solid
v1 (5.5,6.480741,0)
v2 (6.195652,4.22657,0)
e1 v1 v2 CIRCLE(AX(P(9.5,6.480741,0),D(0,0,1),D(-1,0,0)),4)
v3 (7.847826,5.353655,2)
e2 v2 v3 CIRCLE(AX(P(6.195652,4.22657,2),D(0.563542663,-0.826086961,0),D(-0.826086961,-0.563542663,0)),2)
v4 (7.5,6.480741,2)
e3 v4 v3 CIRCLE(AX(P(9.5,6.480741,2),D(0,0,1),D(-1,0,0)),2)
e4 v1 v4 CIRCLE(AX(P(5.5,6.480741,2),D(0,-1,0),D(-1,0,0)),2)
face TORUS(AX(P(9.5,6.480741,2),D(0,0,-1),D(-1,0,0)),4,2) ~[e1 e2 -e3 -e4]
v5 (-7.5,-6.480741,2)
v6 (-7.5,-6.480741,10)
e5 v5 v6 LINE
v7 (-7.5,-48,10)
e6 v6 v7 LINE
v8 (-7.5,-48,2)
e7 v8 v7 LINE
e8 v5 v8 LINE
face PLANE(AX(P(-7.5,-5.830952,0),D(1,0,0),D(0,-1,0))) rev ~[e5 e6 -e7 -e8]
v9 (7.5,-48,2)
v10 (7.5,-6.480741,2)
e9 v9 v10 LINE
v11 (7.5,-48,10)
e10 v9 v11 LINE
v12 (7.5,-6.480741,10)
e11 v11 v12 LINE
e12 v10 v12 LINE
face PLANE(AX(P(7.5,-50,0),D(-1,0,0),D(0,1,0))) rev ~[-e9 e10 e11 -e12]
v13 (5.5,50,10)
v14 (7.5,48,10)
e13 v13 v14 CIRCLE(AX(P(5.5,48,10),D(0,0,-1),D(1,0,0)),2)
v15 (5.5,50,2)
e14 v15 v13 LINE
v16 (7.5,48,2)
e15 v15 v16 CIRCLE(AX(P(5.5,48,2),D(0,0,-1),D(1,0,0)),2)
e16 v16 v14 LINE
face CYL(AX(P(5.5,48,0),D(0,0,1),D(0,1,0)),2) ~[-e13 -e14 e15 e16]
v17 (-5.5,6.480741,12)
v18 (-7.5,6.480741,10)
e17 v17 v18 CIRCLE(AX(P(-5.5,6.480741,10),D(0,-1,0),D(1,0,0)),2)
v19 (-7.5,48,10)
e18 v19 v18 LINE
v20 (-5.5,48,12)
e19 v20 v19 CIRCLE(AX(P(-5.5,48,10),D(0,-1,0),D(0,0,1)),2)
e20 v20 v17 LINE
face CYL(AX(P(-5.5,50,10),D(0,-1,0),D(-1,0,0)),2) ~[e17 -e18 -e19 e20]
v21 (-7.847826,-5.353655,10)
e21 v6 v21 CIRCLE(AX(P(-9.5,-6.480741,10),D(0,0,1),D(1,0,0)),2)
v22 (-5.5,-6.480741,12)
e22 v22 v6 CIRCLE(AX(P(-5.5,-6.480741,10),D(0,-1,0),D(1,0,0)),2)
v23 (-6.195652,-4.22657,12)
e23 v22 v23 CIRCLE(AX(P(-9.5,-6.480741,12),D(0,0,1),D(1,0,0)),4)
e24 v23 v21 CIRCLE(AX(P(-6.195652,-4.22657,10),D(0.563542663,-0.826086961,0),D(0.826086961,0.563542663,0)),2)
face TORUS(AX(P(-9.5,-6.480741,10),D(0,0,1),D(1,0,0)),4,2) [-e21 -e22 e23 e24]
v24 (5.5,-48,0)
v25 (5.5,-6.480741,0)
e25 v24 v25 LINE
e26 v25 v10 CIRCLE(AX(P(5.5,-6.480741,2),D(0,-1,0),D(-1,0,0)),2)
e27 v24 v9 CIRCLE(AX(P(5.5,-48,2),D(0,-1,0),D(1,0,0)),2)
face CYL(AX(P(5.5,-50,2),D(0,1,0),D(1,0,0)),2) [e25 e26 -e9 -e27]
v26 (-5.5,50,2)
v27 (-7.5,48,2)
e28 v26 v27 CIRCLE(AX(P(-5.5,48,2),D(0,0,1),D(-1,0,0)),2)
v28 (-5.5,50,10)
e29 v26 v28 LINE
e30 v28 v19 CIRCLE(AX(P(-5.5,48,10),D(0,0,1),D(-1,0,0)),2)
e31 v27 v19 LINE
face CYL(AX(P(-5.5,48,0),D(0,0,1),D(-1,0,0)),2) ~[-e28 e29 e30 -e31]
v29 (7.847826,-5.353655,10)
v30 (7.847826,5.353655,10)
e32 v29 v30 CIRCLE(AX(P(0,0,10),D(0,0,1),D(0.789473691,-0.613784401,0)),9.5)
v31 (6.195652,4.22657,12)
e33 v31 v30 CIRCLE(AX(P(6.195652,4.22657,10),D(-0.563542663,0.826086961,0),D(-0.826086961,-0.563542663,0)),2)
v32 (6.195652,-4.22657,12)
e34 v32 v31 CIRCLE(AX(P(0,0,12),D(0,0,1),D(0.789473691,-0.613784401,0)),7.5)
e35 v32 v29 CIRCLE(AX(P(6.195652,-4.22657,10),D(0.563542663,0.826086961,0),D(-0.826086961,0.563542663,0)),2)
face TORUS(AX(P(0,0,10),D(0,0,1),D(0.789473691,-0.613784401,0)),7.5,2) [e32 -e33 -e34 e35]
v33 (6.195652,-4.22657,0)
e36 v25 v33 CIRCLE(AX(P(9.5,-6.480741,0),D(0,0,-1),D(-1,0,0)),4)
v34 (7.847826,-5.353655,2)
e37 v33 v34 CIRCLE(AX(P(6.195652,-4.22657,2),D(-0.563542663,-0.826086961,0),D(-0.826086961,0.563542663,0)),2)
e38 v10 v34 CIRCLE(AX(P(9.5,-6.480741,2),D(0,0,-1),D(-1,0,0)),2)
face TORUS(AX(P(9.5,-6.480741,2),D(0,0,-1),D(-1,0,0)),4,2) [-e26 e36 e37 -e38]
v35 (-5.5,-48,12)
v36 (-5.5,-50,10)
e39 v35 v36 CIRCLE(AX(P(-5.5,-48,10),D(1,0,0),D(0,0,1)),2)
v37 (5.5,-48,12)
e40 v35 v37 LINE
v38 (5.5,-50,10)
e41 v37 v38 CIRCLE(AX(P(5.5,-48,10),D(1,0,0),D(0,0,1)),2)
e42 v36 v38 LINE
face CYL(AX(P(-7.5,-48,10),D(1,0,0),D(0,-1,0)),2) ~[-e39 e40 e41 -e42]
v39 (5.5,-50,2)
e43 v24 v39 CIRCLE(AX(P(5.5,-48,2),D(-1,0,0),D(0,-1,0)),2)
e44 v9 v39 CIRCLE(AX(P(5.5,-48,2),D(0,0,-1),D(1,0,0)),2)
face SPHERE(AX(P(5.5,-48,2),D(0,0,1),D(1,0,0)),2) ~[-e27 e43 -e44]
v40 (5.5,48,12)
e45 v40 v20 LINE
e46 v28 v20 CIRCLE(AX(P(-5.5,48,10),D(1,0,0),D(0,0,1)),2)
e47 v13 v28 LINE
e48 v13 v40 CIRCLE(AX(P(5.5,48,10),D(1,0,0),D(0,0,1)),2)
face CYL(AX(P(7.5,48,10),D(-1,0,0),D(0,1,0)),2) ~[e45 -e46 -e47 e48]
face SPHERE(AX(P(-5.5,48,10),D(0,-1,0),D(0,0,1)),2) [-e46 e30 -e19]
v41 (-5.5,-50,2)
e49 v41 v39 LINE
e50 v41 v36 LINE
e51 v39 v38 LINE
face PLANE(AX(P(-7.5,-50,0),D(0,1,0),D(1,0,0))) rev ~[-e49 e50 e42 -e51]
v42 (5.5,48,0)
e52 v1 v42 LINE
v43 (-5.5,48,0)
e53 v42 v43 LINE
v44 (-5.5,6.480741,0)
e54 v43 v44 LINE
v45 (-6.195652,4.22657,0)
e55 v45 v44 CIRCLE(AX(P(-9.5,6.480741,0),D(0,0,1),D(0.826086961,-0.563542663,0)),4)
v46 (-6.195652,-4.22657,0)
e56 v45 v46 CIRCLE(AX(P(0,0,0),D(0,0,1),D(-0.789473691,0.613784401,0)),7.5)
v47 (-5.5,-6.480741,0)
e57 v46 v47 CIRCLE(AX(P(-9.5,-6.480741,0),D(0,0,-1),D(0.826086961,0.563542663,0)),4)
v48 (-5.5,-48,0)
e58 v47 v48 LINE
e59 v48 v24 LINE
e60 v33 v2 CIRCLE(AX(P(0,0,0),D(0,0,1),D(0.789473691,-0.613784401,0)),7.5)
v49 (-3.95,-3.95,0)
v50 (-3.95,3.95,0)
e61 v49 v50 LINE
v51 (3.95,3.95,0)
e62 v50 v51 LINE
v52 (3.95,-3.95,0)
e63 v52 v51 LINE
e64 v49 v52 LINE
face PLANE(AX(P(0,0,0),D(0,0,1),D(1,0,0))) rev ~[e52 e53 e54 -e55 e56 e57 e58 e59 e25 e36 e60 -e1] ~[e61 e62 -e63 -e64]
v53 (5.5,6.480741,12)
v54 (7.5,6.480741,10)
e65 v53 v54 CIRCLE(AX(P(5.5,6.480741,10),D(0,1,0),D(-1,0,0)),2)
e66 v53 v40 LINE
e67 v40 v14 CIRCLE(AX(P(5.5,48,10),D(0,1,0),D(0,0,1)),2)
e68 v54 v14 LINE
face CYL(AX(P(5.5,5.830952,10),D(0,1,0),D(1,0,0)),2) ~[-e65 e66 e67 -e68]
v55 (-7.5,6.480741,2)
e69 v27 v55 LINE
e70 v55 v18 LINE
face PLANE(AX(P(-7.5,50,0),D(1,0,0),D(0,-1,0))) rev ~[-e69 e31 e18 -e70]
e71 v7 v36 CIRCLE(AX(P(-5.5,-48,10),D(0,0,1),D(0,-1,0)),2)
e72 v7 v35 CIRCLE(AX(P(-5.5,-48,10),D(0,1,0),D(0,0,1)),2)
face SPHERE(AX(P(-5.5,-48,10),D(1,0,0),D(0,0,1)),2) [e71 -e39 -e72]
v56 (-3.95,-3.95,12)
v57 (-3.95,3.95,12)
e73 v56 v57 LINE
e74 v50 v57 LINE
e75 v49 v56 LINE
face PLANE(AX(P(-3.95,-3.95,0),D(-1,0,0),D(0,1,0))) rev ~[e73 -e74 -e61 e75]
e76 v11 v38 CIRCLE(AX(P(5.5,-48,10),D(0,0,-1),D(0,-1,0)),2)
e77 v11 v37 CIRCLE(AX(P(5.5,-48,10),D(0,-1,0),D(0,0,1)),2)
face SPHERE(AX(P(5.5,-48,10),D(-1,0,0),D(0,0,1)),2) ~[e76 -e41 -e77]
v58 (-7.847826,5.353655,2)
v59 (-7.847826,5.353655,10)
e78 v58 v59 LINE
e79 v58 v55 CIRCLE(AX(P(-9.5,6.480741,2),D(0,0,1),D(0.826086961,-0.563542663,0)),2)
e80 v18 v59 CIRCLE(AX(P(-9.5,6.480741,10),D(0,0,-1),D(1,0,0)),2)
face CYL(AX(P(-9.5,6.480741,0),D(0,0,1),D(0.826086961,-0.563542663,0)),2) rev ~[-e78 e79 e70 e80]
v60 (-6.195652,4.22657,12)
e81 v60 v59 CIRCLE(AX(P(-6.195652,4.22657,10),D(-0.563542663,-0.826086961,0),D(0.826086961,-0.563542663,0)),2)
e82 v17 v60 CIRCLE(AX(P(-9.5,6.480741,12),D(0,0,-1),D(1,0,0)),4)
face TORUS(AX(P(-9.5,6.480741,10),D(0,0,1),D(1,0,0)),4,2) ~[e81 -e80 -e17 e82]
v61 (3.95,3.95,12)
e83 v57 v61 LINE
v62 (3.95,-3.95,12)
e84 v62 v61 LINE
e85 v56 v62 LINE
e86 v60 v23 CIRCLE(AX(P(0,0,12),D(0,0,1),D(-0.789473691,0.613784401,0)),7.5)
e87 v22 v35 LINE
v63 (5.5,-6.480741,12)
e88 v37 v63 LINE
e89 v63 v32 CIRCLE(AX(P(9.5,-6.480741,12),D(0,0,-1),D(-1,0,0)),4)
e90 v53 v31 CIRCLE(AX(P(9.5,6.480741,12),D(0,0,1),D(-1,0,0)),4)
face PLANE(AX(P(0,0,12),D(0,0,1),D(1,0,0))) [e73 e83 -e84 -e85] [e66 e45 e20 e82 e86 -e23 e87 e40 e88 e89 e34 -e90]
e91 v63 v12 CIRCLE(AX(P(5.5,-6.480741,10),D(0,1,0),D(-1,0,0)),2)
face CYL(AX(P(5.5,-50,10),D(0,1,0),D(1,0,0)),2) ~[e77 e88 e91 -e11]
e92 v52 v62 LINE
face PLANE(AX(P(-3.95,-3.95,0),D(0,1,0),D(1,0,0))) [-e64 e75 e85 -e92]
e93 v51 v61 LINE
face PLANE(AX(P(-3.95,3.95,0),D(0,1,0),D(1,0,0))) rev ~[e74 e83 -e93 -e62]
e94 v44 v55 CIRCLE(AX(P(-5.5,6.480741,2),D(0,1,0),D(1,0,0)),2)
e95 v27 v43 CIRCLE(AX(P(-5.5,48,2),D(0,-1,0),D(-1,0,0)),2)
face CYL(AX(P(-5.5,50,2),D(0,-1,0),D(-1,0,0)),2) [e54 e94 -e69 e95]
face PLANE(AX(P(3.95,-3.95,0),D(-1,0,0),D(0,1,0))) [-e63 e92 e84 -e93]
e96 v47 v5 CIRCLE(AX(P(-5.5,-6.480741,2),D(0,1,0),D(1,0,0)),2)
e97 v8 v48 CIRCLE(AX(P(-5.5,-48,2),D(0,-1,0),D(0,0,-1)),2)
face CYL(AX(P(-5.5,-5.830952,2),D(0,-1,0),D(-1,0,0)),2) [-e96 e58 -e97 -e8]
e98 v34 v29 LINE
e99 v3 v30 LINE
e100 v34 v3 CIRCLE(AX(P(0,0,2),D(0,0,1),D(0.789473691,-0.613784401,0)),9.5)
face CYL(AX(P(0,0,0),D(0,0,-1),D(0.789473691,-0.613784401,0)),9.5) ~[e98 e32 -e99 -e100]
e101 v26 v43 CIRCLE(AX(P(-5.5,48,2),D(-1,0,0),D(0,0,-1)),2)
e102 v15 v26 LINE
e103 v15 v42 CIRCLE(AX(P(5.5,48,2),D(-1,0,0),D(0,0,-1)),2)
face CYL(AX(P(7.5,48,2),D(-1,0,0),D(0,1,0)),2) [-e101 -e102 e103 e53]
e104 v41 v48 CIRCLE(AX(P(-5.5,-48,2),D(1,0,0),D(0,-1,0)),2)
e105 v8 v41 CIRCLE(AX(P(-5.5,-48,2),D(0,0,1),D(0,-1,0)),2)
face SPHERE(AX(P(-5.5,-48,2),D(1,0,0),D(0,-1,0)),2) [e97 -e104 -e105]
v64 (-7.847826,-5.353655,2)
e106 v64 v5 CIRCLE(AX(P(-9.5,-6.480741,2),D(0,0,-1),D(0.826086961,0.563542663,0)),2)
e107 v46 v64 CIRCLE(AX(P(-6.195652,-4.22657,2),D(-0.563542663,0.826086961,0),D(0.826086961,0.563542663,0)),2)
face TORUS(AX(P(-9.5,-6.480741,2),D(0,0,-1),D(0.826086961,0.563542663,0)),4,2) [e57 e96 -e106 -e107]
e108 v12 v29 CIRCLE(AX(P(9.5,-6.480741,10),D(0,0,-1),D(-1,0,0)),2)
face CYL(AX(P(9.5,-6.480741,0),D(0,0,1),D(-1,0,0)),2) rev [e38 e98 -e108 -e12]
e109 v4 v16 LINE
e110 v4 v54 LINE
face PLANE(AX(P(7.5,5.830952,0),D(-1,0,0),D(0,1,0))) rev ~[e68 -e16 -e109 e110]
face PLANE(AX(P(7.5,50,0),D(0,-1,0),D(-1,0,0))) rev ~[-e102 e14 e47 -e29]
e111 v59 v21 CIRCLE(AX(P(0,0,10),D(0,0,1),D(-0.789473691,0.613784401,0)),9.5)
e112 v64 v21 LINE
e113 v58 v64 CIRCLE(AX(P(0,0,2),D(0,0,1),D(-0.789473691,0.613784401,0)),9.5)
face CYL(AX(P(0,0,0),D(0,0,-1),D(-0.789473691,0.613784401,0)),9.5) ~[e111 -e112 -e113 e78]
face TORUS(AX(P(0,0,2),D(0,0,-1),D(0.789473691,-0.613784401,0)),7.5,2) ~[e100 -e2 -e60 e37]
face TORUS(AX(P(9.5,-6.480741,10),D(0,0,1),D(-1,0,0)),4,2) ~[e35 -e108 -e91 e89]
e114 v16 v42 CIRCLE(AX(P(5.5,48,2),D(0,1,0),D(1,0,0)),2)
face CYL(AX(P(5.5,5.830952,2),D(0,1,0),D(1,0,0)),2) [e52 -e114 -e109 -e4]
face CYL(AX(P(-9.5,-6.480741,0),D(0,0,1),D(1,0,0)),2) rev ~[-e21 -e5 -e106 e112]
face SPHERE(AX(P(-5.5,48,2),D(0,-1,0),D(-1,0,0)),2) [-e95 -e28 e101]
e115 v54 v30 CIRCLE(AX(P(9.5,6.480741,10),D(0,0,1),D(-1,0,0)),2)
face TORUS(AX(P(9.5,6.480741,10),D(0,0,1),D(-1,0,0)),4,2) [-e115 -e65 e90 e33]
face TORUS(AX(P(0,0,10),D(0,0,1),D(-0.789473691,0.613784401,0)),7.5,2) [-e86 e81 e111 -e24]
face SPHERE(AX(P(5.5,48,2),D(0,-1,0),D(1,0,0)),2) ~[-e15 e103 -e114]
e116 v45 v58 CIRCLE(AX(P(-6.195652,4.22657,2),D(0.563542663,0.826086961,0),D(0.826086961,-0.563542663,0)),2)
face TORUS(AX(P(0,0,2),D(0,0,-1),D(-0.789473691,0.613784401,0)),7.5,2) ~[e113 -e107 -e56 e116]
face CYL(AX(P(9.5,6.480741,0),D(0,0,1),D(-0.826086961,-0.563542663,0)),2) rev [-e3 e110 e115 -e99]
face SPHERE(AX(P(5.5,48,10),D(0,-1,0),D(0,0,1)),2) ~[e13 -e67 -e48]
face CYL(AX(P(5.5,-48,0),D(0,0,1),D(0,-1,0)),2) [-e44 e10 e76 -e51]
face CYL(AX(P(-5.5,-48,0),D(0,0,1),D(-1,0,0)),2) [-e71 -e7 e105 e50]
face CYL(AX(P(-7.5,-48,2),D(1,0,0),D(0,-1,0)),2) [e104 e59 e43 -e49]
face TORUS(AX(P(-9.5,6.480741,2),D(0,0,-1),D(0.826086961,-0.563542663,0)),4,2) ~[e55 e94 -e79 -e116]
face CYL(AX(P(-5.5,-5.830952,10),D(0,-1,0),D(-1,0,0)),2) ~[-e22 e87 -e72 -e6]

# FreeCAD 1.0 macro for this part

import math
import FreeCAD as App
import Part
import Sketcher

V = App.Vector


def edges_at(feature, points):
    """Names of the edges that pass closest to the given points."""
    edges = feature.Shape.Edges
    near = lambda p: min(range(len(edges)), key=lambda i: edges[i].distToShape(Part.Vertex(*p))[0])
    return sorted({f"Edge{near(p) + 1}" for p in points})


def add_polygon(sketch, points):
    """Adds a closed chain of lines whose ends are joined by coincident constraints."""
    first, n = sketch.GeometryCount, len(points)
    for a, b in zip(points, points[1:] + points[:1]):
        sketch.addGeometry(Part.LineSegment(App.Vector(*a, 0), App.Vector(*b, 0)), False)
    for i in range(n):
        sketch.addConstraint(Sketcher.Constraint("Coincident", first + i, 2, first + (i + 1) % n, 1))

doc = App.newDocument("Part")
params = doc.addObject("Spreadsheet::Sheet", "Params")
for row, (alias, value) in enumerate([
    ("sketch1_radius", "9.5 mm"),
    ("sketch1_width", "15 mm"),
    ("sketch1_width2", "7.9 mm"),
    ("pad1_length", "12 mm"),
    ("fillet_radius", "2 mm"),
], start=1):
    params.set(f"A{row}", alias)
    params.set(f"B{row}", "=" + value)
    params.setAlias(f"B{row}", alias)

body = doc.addObject("PartDesign::Body", "Body")

# Sketch on XY plane
sketch1 = body.newObject("Sketcher::SketchObject", "Sketch")
sketch1.AttachmentSupport = (doc.getObject("XY_Plane"), [""])
sketch1.MapMode = "FlatFace"
sketch1.addGeometry(Part.LineSegment(V(-8, -6, 0), V(-8, -50, 0)), False)  # 0
sketch1.addGeometry(Part.LineSegment(V(-8, -50, 0), V(8, -50, 0)), False)  # 1
sketch1.addGeometry(Part.LineSegment(V(8, -50, 0), V(8, -6, 0)), False)  # 2
sketch1.addGeometry(Part.ArcOfCircle(Part.Circle(V(0, 0, 0), V(0, 0, 1), 10), math.radians(-38), math.radians(38)), False)  # 3
sketch1.addGeometry(Part.LineSegment(V(8, 6, 0), V(8, 50, 0)), False)  # 4
sketch1.addGeometry(Part.LineSegment(V(8, 50, 0), V(-8, 50, 0)), False)  # 5
sketch1.addGeometry(Part.LineSegment(V(-8, 50, 0), V(-8, 6, 0)), False)  # 6
sketch1.addGeometry(Part.ArcOfCircle(Part.Circle(V(0, 0, 0), V(0, 0, 1), 10), math.radians(142), math.radians(218)), False)  # 7
add_polygon(sketch1, [(4, -4), (-4, -4), (-4, 4), (4, 4)])  # lines 8-11
sketch1.addConstraint([
    Sketcher.Constraint("Coincident", 0, 2, 1, 1),
    Sketcher.Constraint("Coincident", 1, 2, 2, 1),
    Sketcher.Constraint("Coincident", 2, 2, 3, 1),
    Sketcher.Constraint("Coincident", 3, 2, 4, 1),
    Sketcher.Constraint("Coincident", 4, 2, 5, 1),
    Sketcher.Constraint("Coincident", 5, 2, 6, 1),
    Sketcher.Constraint("Coincident", 6, 2, 7, 1),
    Sketcher.Constraint("Coincident", 7, 2, 0, 1),
    Sketcher.Constraint("Vertical", 0),
    Sketcher.Constraint("Horizontal", 1),
    Sketcher.Constraint("Vertical", 2),
    Sketcher.Constraint("Vertical", 4),
    Sketcher.Constraint("Horizontal", 5),
    Sketcher.Constraint("Vertical", 6),
    Sketcher.Constraint("Horizontal", 8),
    Sketcher.Constraint("Vertical", 9),
    Sketcher.Constraint("Horizontal", 10),
    Sketcher.Constraint("Vertical", 11),
    Sketcher.Constraint("Coincident", 3, 3, -1, 1),
    Sketcher.Constraint("Coincident", 7, 3, -1, 1),
    Sketcher.Constraint("Equal", 3, 7),
    Sketcher.Constraint("Symmetric", 0, 2, 4, 2, -1, 1),
    Sketcher.Constraint("Symmetric", 8, 2, 10, 2, -1, 1),
    Sketcher.Constraint("Horizontal", 3, 2, 6, 2),
    Sketcher.Constraint("Horizontal", 2, 2, 7, 2),
    Sketcher.Constraint("Equal", 10, 9),
    Sketcher.Constraint("Radius", 3, 9.5),
    Sketcher.Constraint("DistanceX", 1, 1, 1, 2, 15.0),
    Sketcher.Constraint("DistanceX", 8, 2, 8, 1, 7.9),
    Sketcher.Constraint("DistanceY", 0, 2, -1, 1, 50.0),
])
sketch1.setExpression("Constraints[30]", "Params.sketch1_radius")
sketch1.setExpression("Constraints[31]", "Params.sketch1_width")
sketch1.setExpression("Constraints[32]", "Params.sketch1_width2")
pad1 = body.newObject("PartDesign::Pad", "Pad")
pad1.Profile = sketch1
pad1.setExpression("Length", "Params.pad1_length")
doc.recompute()

fillet = body.newObject("PartDesign::Fillet", "Fillet")
fillet.Base = (pad1, edges_at(pad1, [
    (0, -50, 12),
    (7.5, -27.915, 12),
    (-7.5, -27.915, 12),
    (7.5, 27.915, 12),
    (-7.5, 27.915, 12),
    (9.5, 0, 12),
    (-9.5, 0, 12),
    (0, 50, 12),
    (7.5, -50, 6),
    (7.5, -27.915, 0),
    (0, -50, 0),
    (-7.5, -50, 6),
    (-9.5, 0, 0),
    (-7.5, -27.915, 0),
    (-7.5, 27.915, 0),
    (7.5, 27.915, 0),
    (9.5, 0, 0),
    (7.5, 50, 6),
    (-7.5, 50, 6),
    (0, 50, 0),
    (7.5, 5.831, 6),
    (7.5, -5.831, 6),
    (-7.5, -5.831, 6),
    (-7.5, 5.831, 6),
]))
fillet.setExpression("Radius", "Params.fillet_radius")

doc.recompute()
